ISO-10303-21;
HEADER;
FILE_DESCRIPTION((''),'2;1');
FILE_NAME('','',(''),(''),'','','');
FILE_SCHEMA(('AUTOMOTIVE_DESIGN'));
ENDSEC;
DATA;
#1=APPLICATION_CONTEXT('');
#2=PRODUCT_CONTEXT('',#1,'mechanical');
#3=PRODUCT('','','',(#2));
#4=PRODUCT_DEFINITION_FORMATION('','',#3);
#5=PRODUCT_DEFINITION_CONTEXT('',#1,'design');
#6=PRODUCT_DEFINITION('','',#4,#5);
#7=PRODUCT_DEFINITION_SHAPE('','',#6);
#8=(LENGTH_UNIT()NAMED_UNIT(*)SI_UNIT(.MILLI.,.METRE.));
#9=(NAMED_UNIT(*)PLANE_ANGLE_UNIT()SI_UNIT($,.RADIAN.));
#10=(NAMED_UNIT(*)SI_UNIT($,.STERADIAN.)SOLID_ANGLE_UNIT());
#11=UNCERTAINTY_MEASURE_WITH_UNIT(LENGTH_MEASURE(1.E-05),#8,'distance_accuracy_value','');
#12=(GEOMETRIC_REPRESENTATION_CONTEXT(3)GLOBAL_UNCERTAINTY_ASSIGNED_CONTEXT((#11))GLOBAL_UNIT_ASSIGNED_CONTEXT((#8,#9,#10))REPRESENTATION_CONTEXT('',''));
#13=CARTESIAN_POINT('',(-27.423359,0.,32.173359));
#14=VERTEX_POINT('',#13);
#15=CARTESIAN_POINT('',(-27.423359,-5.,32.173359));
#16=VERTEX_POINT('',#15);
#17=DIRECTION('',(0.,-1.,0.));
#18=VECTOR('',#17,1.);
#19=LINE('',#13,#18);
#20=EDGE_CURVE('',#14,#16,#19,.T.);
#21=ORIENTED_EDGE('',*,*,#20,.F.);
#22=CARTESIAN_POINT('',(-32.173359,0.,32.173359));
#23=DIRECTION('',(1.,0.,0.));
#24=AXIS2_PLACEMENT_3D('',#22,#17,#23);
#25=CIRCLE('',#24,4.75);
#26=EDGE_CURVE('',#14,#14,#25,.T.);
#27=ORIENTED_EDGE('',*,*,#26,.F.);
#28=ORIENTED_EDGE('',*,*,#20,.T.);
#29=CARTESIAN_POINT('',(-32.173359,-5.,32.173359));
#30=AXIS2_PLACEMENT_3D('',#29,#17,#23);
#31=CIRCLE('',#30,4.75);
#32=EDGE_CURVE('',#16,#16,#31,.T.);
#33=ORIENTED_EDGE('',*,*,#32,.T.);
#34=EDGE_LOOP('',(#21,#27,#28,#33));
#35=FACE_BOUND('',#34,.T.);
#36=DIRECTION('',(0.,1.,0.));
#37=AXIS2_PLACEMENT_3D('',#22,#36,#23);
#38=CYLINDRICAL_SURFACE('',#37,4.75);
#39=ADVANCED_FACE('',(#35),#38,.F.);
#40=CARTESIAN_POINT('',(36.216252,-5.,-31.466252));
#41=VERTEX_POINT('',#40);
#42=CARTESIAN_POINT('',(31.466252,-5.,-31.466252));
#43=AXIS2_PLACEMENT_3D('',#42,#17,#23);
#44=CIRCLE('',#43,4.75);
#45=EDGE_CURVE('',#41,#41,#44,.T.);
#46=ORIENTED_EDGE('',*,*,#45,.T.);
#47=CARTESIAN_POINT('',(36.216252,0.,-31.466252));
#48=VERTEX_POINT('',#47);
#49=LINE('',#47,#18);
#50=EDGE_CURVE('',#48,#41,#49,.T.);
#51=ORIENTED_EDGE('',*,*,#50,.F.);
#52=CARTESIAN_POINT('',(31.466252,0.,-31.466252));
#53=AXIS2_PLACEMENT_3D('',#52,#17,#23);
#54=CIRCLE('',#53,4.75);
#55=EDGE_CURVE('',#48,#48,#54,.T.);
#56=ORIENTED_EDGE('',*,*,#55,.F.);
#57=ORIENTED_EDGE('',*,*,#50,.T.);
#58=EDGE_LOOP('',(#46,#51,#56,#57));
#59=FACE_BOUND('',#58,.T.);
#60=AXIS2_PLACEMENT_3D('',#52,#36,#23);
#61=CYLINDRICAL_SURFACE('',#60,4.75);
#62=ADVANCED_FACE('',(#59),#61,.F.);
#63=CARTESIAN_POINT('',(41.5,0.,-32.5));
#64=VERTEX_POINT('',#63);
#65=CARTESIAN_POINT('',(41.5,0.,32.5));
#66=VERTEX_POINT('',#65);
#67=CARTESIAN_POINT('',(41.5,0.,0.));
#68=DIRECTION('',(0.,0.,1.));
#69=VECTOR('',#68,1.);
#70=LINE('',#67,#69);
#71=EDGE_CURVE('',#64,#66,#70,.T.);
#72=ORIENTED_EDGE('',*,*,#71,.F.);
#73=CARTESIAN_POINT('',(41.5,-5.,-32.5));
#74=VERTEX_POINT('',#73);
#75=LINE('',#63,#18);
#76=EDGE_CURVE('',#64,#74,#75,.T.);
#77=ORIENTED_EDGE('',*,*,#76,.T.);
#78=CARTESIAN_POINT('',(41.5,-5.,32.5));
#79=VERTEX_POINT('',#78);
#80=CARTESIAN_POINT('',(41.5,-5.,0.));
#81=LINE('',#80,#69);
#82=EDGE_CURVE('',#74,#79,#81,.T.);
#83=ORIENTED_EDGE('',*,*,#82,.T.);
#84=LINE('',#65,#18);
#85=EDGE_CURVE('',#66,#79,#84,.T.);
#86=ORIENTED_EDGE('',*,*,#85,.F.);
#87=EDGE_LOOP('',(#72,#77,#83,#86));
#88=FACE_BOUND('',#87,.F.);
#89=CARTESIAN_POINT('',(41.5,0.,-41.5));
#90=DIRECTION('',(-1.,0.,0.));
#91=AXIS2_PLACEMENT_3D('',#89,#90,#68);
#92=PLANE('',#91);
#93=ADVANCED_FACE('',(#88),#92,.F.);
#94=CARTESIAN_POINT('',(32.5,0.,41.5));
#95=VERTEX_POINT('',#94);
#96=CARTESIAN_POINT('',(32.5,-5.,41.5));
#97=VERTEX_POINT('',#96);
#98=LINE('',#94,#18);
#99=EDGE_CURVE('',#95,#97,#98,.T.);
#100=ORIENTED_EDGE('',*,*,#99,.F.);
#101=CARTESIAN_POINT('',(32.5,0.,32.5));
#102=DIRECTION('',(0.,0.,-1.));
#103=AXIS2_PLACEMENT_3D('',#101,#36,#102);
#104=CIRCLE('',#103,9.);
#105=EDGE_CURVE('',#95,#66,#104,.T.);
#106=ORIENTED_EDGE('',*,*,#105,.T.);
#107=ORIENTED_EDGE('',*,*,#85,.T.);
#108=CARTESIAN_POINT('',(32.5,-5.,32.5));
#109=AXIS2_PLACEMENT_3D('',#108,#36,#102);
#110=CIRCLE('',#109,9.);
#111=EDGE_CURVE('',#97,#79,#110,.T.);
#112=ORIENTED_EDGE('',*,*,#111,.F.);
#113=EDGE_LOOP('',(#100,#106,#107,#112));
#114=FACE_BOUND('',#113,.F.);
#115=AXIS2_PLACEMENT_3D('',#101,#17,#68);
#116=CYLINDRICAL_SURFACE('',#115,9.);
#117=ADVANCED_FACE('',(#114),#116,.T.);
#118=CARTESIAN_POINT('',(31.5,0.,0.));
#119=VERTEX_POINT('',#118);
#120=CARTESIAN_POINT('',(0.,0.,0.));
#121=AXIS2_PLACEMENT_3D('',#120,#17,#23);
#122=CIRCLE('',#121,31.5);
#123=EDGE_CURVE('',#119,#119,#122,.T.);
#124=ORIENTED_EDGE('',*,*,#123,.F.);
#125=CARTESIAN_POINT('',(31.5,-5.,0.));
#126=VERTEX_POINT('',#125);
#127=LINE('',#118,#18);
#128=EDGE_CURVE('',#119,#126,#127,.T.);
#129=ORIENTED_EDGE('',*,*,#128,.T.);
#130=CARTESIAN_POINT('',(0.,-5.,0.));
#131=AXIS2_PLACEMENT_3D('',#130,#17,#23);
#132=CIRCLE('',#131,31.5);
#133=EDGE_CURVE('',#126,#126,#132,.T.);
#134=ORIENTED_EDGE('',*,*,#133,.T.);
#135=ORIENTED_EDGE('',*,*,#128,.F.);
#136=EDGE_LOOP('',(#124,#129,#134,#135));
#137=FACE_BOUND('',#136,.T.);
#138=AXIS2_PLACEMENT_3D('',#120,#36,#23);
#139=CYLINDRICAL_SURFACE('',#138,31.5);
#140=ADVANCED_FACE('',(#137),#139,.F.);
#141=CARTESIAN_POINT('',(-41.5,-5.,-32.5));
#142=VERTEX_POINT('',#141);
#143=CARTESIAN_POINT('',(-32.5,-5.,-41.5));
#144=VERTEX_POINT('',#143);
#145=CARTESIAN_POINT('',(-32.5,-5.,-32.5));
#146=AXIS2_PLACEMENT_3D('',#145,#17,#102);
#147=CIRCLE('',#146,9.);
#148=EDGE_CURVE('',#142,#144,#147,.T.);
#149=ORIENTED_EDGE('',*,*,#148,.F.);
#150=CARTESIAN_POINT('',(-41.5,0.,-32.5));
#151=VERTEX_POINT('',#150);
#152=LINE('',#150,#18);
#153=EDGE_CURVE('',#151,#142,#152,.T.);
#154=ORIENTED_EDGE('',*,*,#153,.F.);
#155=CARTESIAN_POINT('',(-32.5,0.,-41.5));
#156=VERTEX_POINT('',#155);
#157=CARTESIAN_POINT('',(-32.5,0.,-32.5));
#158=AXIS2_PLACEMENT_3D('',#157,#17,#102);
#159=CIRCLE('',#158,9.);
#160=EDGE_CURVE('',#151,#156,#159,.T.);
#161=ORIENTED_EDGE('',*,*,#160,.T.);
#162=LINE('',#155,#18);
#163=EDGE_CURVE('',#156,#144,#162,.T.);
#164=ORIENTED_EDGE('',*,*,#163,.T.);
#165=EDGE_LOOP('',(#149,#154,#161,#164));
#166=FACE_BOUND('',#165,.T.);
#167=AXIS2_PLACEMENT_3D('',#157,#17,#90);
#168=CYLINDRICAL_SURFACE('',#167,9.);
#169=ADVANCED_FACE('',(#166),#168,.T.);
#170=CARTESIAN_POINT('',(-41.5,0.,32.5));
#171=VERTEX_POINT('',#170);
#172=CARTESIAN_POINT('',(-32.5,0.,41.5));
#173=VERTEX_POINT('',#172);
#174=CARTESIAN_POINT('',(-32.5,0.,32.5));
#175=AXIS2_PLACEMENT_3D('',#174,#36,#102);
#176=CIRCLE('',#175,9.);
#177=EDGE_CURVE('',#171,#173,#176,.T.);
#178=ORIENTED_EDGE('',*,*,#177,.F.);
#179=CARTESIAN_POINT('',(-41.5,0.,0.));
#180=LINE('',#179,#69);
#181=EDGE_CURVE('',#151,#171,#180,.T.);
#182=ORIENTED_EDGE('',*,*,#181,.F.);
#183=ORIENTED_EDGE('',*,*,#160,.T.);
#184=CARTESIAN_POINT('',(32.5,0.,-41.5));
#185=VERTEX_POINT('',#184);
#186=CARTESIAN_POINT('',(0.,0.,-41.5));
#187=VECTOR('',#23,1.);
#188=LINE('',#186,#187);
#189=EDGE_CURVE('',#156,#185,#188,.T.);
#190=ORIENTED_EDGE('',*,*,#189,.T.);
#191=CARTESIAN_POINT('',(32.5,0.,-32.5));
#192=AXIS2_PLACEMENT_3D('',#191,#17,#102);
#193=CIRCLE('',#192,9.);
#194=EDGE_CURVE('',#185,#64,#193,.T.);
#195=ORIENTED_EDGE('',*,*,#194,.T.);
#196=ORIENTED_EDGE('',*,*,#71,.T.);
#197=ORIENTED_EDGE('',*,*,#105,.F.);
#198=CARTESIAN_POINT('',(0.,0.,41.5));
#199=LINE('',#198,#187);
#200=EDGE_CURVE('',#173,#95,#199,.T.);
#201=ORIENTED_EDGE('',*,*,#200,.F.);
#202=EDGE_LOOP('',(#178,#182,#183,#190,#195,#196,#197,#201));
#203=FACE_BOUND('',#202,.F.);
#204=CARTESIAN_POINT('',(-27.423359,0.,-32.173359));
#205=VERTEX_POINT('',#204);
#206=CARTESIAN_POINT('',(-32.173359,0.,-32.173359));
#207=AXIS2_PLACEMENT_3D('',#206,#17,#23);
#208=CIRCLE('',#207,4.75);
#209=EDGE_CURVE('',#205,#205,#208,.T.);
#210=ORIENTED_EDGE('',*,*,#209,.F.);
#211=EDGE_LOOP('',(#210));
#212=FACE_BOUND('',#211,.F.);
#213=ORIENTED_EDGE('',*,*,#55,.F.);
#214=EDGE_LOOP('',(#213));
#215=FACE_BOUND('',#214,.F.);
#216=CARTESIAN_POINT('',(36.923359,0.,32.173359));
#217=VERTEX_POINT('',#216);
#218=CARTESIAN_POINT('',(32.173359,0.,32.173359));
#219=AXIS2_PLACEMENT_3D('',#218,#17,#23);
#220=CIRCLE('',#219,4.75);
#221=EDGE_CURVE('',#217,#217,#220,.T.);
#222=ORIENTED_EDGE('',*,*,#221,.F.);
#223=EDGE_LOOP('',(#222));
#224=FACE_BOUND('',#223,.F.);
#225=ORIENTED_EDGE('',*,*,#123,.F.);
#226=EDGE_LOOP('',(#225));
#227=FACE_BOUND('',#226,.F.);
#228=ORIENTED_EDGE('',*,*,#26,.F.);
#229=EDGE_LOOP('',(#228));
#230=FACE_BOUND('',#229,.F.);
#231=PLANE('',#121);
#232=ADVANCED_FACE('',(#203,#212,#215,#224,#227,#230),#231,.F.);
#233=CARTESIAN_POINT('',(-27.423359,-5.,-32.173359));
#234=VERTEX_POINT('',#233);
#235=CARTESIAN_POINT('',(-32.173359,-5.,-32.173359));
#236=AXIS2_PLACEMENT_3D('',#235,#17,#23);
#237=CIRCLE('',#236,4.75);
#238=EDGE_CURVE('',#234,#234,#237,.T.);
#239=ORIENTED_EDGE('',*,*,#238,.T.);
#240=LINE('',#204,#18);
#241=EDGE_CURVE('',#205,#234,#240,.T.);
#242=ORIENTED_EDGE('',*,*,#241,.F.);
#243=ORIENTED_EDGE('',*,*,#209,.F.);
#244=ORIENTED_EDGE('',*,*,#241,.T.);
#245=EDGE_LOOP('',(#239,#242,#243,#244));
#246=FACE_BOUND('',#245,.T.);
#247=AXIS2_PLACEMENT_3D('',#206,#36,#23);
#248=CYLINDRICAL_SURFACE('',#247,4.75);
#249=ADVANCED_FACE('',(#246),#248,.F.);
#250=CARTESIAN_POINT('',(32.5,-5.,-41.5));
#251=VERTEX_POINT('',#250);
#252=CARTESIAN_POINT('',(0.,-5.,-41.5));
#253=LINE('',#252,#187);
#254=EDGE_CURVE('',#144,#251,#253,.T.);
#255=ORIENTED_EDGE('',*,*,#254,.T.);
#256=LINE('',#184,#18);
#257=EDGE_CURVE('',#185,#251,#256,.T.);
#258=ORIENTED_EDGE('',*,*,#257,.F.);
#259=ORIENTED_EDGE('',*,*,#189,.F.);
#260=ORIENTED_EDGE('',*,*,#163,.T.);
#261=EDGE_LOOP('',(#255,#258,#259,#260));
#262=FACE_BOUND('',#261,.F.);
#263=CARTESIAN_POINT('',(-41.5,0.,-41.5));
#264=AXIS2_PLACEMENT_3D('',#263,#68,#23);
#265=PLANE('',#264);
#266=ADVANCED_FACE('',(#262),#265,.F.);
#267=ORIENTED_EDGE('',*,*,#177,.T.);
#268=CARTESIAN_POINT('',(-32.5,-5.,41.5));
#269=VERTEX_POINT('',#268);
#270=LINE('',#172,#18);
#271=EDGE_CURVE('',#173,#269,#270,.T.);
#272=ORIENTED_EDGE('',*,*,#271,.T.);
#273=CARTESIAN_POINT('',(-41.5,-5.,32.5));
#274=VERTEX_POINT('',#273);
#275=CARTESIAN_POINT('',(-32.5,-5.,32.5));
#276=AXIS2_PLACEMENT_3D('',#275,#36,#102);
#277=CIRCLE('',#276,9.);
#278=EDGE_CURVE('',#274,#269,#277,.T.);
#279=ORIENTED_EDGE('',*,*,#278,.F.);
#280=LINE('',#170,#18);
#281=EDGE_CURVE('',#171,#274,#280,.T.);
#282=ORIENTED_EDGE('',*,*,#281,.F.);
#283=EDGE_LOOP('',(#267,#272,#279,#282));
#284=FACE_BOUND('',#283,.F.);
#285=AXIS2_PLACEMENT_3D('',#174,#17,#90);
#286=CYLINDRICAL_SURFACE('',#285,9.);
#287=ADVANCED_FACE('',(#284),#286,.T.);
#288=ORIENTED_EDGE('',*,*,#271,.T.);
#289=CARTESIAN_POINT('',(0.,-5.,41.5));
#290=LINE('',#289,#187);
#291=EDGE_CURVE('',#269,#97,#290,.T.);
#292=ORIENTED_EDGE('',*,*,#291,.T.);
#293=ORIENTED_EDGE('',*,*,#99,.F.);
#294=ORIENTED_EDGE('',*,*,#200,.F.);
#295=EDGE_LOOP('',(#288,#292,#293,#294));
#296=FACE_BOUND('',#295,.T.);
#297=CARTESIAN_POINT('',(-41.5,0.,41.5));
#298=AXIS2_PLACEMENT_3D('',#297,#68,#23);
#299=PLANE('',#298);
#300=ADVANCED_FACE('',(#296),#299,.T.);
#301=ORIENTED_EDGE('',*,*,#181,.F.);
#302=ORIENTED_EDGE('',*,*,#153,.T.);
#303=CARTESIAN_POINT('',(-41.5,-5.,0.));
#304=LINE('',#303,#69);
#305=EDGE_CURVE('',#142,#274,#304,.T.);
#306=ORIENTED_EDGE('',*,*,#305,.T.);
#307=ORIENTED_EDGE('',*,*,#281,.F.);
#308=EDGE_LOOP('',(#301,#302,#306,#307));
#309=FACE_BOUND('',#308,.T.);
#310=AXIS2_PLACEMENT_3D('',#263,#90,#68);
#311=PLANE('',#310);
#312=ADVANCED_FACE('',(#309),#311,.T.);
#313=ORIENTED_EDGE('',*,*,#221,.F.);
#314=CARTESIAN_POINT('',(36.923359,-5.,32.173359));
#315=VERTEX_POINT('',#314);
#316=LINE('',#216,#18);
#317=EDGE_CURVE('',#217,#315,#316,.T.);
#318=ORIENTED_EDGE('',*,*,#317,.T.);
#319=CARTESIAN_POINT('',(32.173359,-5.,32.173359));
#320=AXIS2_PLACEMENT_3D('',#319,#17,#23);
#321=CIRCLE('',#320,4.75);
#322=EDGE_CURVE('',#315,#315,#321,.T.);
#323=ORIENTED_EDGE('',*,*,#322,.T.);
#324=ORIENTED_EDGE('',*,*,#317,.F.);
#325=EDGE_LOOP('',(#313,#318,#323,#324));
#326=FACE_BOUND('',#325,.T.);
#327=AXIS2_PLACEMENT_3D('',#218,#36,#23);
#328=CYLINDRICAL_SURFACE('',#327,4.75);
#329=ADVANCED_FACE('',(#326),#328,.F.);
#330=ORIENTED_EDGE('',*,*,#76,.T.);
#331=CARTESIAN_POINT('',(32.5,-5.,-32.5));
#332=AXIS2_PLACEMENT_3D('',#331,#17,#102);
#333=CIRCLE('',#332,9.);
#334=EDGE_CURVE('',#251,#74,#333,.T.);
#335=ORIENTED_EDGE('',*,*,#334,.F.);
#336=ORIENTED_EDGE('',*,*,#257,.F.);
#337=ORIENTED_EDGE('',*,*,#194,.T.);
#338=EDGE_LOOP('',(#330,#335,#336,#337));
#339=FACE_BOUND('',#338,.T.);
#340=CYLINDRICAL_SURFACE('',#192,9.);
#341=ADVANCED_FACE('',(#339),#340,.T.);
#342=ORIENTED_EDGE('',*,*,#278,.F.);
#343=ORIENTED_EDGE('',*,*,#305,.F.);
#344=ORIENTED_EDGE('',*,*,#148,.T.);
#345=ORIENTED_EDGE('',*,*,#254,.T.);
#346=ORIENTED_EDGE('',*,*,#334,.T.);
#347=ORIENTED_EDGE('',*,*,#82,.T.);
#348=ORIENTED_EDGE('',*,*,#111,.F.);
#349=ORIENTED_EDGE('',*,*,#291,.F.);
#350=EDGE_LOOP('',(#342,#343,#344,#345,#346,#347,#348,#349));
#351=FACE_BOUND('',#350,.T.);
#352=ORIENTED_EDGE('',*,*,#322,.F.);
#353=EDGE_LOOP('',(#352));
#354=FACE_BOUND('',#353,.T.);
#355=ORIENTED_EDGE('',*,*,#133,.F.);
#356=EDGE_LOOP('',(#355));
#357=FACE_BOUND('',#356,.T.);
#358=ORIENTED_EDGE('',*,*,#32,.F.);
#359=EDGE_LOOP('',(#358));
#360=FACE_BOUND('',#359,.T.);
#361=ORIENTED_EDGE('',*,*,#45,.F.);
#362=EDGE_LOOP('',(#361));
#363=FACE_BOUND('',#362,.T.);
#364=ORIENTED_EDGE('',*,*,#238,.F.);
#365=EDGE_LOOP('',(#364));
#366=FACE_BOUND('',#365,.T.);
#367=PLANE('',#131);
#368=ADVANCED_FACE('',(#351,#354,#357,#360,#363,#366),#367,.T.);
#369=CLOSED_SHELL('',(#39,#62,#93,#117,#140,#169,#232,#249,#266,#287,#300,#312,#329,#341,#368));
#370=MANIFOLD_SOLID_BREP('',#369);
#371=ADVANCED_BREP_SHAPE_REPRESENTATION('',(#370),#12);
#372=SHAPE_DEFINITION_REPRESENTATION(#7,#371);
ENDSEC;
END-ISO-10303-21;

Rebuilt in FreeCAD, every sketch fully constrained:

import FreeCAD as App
import Part
import Sketcher
from FreeCAD import Vector
Q = App.Units.Quantity


def edges_at(feature, points):
    """Names of the edges that pass closest to the given points."""
    edges = feature.Shape.Edges
    near = lambda p: min(range(len(edges)), key=lambda i: edges[i].distToShape(Part.Vertex(*p))[0])
    return sorted({f"Edge{near(p) + 1}" for p in points})


def add_polygon(sketch, points):
    """Adds a closed chain of lines whose ends are joined by coincident constraints."""
    first, n = sketch.GeometryCount, len(points)
    for a, b in zip(points, points[1:] + points[:1]):
        sketch.addGeometry(Part.LineSegment(App.Vector(*a, 0), App.Vector(*b, 0)), False)
    for i in range(n):
        sketch.addConstraint(Sketcher.Constraint("Coincident", first + i, 2, first + (i + 1) % n, 1))

doc = App.newDocument("Part")
params = doc.addObject("Spreadsheet::Sheet", "Params")
for row, (alias, value) in enumerate([
    ("sketch1_diameter", "63 mm"),
    ("sketch1_diameter2", "9.5 mm"),
    ("sketch1_width", "83 mm"),
    ("pad1_length", "5 mm"),
    ("fillet_radius", "9 mm"),
], start=1):
    params.set(f"A{row}", alias)
    params.set(f"B{row}", "=" + value)
    params.setAlias(f"B{row}", alias)

body = doc.addObject("PartDesign::Body", "Body")

# Sketch on XZ plane
sketch1 = doc.addObject("Sketcher::SketchObject", "Sketch")
body.addObject(sketch1)
sketch1.AttachmentSupport = (doc.XZ_Plane, [""])
sketch1.MapMode = "FlatFace"
add_polygon(sketch1, [(-41.5, 41.5), (-41.5, -41.5), (41.5, -41.5), (41.5, 41.5)])  # lines 0-3
sketch1.addGeometry(Part.Circle(Vector(-32.2, -32.2, 0), Vector(0, 0, 1), 4.8), False)  # 4
sketch1.addGeometry(Part.Circle(Vector(31.5, -31.5, 0), Vector(0, 0, 1), 4.8), False)  # 5
sketch1.addGeometry(Part.Circle(Vector(-32.2, 32.2, 0), Vector(0, 0, 1), 4.8), False)  # 6
sketch1.addGeometry(Part.Circle(Vector(0, 0, 0), Vector(0, 0, 1), 31.5), False)  # 7
sketch1.addGeometry(Part.Circle(Vector(32.2, 32.2, 0), Vector(0, 0, 1), 4.8), False)  # 8
sketch1.addConstraint([
    Sketcher.Constraint("Vertical", 0),
    Sketcher.Constraint("Horizontal", 1),
    Sketcher.Constraint("Vertical", 2),
    Sketcher.Constraint("Horizontal", 3),
    Sketcher.Constraint("Coincident", 7, 3, -1, 1),
    Sketcher.Constraint("Equal", 4, 5),
    Sketcher.Constraint("Equal", 5, 6),
    Sketcher.Constraint("Equal", 6, 8),
    Sketcher.Constraint("Symmetric", 4, 3, 8, 3, -1, 1),
    Sketcher.Constraint("Symmetric", 0, 2, 2, 2, -1, 1),
    Sketcher.Constraint("Symmetric", 6, 3, 8, 3, -2),
    Sketcher.Constraint("Equal", 3, 0),
    Sketcher.Constraint("Diameter", 7, Q("63 mm")),
    Sketcher.Constraint("Diameter", 4, Q("9.5 mm")),
    Sketcher.Constraint("DistanceX", 1, 1, 1, 2, Q("83 mm")),
    Sketcher.Constraint("DistanceX", 4, 3, -1, 1, Q("32.173359 mm")),
    Sketcher.Constraint("DistanceY", 4, 3, -1, 1, Q("32.173359 mm")),
    Sketcher.Constraint("DistanceX", 4, 3, 5, 3, Q("63.639611 mm")),
    Sketcher.Constraint("DistanceY", 5, 3, 6, 3, Q("63.639611 mm")),
])
sketch1.setExpression("Constraints[16]", "Params.sketch1_diameter")
sketch1.setExpression("Constraints[17]", "Params.sketch1_diameter2")
sketch1.setExpression("Constraints[18]", "Params.sketch1_width")
pad1 = doc.addObject("PartDesign::Pad", "Pad")
body.addObject(pad1)
pad1.Profile = sketch1
pad1.setExpression("Length", "Params.pad1_length")
doc.recompute()

fillet = doc.addObject("PartDesign::Fillet", "Fillet")
body.addObject(fillet)
fillet.Base = (pad1, edges_at(pad1, [
    (41.5, -2.5, -41.5),
    (-41.5, -2.5, -41.5),
    (41.5, -2.5, 41.5),
    (-41.5, -2.5, 41.5),
]))
fillet.setExpression("Radius", "Params.fillet_radius")

doc.recompute()
